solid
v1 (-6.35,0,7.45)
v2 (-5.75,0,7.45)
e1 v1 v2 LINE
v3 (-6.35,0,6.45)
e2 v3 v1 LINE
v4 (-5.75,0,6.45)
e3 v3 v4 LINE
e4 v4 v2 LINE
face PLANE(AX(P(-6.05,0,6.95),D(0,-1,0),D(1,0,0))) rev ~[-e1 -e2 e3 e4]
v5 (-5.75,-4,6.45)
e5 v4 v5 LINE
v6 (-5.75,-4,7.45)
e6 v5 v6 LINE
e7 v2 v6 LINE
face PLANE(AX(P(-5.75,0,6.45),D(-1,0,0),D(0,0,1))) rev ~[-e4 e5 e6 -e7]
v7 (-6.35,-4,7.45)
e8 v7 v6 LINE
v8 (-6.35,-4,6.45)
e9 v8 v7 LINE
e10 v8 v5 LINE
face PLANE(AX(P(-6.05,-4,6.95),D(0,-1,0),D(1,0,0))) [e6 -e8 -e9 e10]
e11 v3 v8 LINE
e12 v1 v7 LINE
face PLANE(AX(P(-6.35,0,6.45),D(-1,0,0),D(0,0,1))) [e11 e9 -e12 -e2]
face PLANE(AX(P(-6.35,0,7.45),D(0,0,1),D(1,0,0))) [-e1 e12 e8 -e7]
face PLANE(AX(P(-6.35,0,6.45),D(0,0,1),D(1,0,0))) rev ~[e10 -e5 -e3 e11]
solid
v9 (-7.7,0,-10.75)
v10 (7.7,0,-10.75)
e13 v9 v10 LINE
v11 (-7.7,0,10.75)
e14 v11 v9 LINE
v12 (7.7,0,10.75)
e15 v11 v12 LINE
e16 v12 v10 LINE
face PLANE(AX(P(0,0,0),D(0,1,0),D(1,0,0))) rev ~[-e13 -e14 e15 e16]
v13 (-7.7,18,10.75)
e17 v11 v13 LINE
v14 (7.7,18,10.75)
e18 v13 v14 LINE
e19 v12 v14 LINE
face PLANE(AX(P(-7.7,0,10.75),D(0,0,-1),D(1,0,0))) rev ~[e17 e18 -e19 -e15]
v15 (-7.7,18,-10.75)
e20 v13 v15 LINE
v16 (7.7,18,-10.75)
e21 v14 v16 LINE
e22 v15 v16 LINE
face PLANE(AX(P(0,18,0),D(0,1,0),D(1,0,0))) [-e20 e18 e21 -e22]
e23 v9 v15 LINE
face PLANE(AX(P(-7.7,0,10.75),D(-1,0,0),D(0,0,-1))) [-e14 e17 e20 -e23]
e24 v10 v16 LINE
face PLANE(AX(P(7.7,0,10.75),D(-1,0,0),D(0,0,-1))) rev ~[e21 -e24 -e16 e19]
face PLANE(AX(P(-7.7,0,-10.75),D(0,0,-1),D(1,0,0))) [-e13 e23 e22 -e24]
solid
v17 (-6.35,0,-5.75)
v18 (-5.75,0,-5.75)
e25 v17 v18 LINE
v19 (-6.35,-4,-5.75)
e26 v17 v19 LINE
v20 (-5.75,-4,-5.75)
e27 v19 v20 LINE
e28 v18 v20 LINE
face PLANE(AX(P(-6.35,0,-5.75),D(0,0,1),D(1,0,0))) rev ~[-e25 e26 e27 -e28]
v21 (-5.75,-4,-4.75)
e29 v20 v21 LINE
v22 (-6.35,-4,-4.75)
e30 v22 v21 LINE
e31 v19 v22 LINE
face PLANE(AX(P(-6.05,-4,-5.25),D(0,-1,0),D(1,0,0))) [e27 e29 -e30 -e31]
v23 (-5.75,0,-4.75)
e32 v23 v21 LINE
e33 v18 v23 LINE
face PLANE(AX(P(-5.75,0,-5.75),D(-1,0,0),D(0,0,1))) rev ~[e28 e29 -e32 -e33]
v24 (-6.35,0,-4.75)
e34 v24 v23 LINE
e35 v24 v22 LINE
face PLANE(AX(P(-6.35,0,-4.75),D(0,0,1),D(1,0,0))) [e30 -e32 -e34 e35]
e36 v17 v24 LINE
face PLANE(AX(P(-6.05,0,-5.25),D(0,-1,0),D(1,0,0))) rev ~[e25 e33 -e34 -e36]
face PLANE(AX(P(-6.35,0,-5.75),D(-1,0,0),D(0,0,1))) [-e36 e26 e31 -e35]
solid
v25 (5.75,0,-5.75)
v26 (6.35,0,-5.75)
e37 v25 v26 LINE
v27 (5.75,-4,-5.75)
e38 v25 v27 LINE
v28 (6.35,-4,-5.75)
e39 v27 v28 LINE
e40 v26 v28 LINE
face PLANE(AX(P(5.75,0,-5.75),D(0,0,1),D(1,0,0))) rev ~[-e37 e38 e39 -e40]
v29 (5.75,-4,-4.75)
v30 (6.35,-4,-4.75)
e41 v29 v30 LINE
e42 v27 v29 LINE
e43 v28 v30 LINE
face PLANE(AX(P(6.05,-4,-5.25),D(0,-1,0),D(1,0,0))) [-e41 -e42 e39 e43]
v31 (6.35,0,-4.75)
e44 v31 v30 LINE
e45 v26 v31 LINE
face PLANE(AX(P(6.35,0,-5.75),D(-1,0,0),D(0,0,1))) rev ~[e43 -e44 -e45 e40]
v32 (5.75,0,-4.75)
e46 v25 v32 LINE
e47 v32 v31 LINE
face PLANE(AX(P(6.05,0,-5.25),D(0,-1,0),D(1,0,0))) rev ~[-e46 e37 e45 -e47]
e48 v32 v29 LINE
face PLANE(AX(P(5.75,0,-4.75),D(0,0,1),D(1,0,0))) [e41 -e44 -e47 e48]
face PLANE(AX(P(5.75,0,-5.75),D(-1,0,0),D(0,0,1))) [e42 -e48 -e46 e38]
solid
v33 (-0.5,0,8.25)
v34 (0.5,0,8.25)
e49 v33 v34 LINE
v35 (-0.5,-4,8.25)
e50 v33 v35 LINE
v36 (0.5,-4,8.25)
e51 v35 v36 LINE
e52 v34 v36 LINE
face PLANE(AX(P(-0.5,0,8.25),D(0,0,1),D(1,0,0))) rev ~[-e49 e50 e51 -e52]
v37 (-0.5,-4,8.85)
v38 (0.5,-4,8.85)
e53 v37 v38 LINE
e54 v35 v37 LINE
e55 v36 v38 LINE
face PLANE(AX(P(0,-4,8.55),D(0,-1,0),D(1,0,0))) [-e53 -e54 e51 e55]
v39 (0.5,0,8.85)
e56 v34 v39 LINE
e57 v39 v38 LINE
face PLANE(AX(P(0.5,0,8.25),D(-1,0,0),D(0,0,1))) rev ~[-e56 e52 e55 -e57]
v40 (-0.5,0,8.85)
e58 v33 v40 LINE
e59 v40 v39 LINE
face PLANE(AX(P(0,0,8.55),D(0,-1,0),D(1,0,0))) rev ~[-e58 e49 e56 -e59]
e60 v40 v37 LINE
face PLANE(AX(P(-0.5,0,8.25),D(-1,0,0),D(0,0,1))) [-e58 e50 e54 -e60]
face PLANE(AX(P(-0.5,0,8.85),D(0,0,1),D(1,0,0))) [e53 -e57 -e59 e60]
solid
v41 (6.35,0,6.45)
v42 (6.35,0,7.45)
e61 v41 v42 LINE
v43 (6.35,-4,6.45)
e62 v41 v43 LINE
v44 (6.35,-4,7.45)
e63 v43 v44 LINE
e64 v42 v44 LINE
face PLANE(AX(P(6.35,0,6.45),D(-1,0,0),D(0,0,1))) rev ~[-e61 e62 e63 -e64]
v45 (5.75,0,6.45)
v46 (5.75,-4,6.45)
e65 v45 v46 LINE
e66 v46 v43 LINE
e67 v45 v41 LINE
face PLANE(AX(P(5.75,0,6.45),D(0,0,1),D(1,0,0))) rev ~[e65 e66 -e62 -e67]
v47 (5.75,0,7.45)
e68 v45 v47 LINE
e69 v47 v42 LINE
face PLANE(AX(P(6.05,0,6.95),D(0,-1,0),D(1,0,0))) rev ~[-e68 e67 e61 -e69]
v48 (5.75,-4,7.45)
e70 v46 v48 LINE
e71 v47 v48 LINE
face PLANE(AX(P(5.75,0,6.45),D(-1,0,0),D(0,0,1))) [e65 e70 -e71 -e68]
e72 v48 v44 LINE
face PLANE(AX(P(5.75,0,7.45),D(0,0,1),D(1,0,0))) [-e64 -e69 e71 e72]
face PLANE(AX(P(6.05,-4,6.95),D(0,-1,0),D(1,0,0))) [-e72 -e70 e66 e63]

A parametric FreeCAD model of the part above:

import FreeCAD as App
import Part
import Sketcher


def add_polygon(sketch, points):
    """Adds a closed chain of lines whose ends are joined by coincident constraints."""
    first, n = sketch.GeometryCount, len(points)
    for a, b in zip(points, points[1:] + points[:1]):
        sketch.addGeometry(Part.LineSegment(App.Vector(*a, 0), App.Vector(*b, 0)), False)
    for i in range(n):
        sketch.addConstraint(Sketcher.Constraint("Coincident", first + i, 2, first + (i + 1) % n, 1))

doc = App.newDocument("Part")
params = doc.addObject("Spreadsheet::Sheet", "Params")
for row, (alias, value) in enumerate([
    ("sketch1_width", "15.4 mm"),
    ("sketch1_height", "21.5 mm"),
    ("pad1_length", "18 mm"),
    ("sketch2_height", "1 mm"),
    ("sketch2_width", "0.6 mm"),
    ("pad2_length", "4 mm"),
    ("sketch3_height", "1 mm"),
    ("sketch3_width", "0.6 mm"),
    ("pad3_length", "4 mm"),
    ("sketch4_width", "1 mm"),
    ("sketch4_height", "0.6 mm"),
    ("pad4_length", "4 mm"),
    ("sketch5_height", "1 mm"),
    ("sketch5_width", "0.6 mm"),
    ("pad5_length", "4 mm"),
    ("sketch6_height", "1 mm"),
    ("sketch6_width", "0.6 mm"),
    ("pad6_length", "4 mm"),
], start=1):
    params.set(f"A{row}", alias)
    params.set(f"B{row}", "=" + value)
    params.setAlias(f"B{row}", alias)

body = doc.addObject("PartDesign::Body", "Body")

# Sketch on XZ plane
sketch1 = body.newObject("Sketcher::SketchObject", "Sketch")
sketch1.AttachmentSupport = (doc.getObject("XZ_Plane"), [""])
sketch1.MapMode = "FlatFace"
add_polygon(sketch1, [(-8, -11), (-8, 11), (8, 11), (8, -11)])  # lines 0-3
sketch1.addConstraint([
    Sketcher.Constraint("Vertical", 0),
    Sketcher.Constraint("Horizontal", 1),
    Sketcher.Constraint("Vertical", 2),
    Sketcher.Constraint("Horizontal", 3),
    Sketcher.Constraint("Symmetric", 0, 2, 2, 2, -1, 1),
    Sketcher.Constraint("DistanceX", 1, 1, 1, 2, 15.4),
    Sketcher.Constraint("DistanceY", 0, 1, 0, 2, 21.5),
])
sketch1.setExpression("Constraints[9]", "Params.sketch1_width")
sketch1.setExpression("Constraints[10]", "Params.sketch1_height")
pad1 = body.newObject("PartDesign::Pad", "Pad")
pad1.Profile = sketch1
pad1.setExpression("Length", "Params.pad1_length")
pad1.Reversed = True
body2 = doc.addObject("PartDesign::Body", "Body001")

# Sketch on XZ plane
sketch2 = body2.newObject("Sketcher::SketchObject", "Sketch001")
sketch2.AttachmentSupport = (doc.getObject("XZ_Plane001"), [""])
sketch2.MapMode = "FlatFace"
add_polygon(sketch2, [(-6.3, -4.8), (-6.3, -5.8), (-5.8, -5.8), (-5.8, -4.8)])  # lines 0-3
sketch2.addConstraint([
    Sketcher.Constraint("Vertical", 0),
    Sketcher.Constraint("Horizontal", 1),
    Sketcher.Constraint("Vertical", 2),
    Sketcher.Constraint("Horizontal", 3),
    Sketcher.Constraint("DistanceY", 0, 2, 0, 1, 1.0),
    Sketcher.Constraint("DistanceX", 1, 1, 1, 2, 0.6),
    Sketcher.Constraint("DistanceX", 0, 2, -1, 1, 6.35),
    Sketcher.Constraint("DistanceY", 0, 2, -1, 1, 5.75),
])
sketch2.setExpression("Constraints[8]", "Params.sketch2_height")
sketch2.setExpression("Constraints[9]", "Params.sketch2_width")
pad2 = body2.newObject("PartDesign::Pad", "Pad001")
pad2.Profile = sketch2
pad2.setExpression("Length", "Params.pad2_length")
body3 = doc.addObject("PartDesign::Body", "Body002")

# Sketch on XZ plane
sketch3 = body3.newObject("Sketcher::SketchObject", "Sketch002")
sketch3.AttachmentSupport = (doc.getObject("XZ_Plane002"), [""])
sketch3.MapMode = "FlatFace"
add_polygon(sketch3, [(-6.3, 7.5), (-6.3, 6.5), (-5.8, 6.5), (-5.8, 7.5)])  # lines 0-3
sketch3.addConstraint([
    Sketcher.Constraint("Vertical", 0),
    Sketcher.Constraint("Horizontal", 1),
    Sketcher.Constraint("Vertical", 2),
    Sketcher.Constraint("Horizontal", 3),
    Sketcher.Constraint("DistanceY", 0, 2, 0, 1, 1.0),
    Sketcher.Constraint("DistanceX", 1, 1, 1, 2, 0.6),
    Sketcher.Constraint("DistanceX", 0, 2, -1, 1, 6.35),
    Sketcher.Constraint("DistanceY", -1, 1, 0, 2, 6.45),
])
sketch3.setExpression("Constraints[8]", "Params.sketch3_height")
sketch3.setExpression("Constraints[9]", "Params.sketch3_width")
pad3 = body3.newObject("PartDesign::Pad", "Pad002")
pad3.Profile = sketch3
pad3.setExpression("Length", "Params.pad3_length")
body4 = doc.addObject("PartDesign::Body", "Body003")

# Sketch on XZ plane
sketch4 = body4.newObject("Sketcher::SketchObject", "Sketch003")
sketch4.AttachmentSupport = (doc.getObject("XZ_Plane003"), [""])
sketch4.MapMode = "FlatFace"
add_polygon(sketch4, [(-0.5, 8.8), (-0.5, 8.2), (0.5, 8.2), (0.5, 8.8)])  # lines 0-3
sketch4.addConstraint([
    Sketcher.Constraint("Vertical", 0),
    Sketcher.Constraint("Horizontal", 1),
    Sketcher.Constraint("Vertical", 2),
    Sketcher.Constraint("Horizontal", 3),
    Sketcher.Constraint("DistanceX", 1, 1, 1, 2, 1.0),
    Sketcher.Constraint("DistanceY", 0, 2, 0, 1, 0.6),
    Sketcher.Constraint("DistanceX", 0, 2, -1, 1, 0.5),
    Sketcher.Constraint("DistanceY", -1, 1, 0, 2, 8.25),
])
sketch4.setExpression("Constraints[8]", "Params.sketch4_width")
sketch4.setExpression("Constraints[9]", "Params.sketch4_height")
pad4 = body4.newObject("PartDesign::Pad", "Pad003")
pad4.Profile = sketch4
pad4.setExpression("Length", "Params.pad4_length")
body5 = doc.addObject("PartDesign::Body", "Body004")

# Sketch on XZ plane
sketch5 = body5.newObject("Sketcher::SketchObject", "Sketch004")
sketch5.AttachmentSupport = (doc.getObject("XZ_Plane004"), [""])
sketch5.MapMode = "FlatFace"
add_polygon(sketch5, [(5.8, 7.5), (5.8, 6.5), (6.3, 6.5), (6.3, 7.5)])  # lines 0-3
sketch5.addConstraint([
    Sketcher.Constraint("Vertical", 0),
    Sketcher.Constraint("Horizontal", 1),
    Sketcher.Constraint("Vertical", 2),
    Sketcher.Constraint("Horizontal", 3),
    Sketcher.Constraint("DistanceY", 0, 2, 0, 1, 1.0),
    Sketcher.Constraint("DistanceX", 1, 1, 1, 2, 0.6),
    Sketcher.Constraint("DistanceX", -1, 1, 0, 2, 5.75),
    Sketcher.Constraint("DistanceY", -1, 1, 0, 2, 6.45),
])
sketch5.setExpression("Constraints[8]", "Params.sketch5_height")
sketch5.setExpression("Constraints[9]", "Params.sketch5_width")
pad5 = body5.newObject("PartDesign::Pad", "Pad004")
pad5.Profile = sketch5
pad5.setExpression("Length", "Params.pad5_length")
body6 = doc.addObject("PartDesign::Body", "Body005")

# Sketch on XZ plane
sketch6 = body6.newObject("Sketcher::SketchObject", "Sketch005")
sketch6.AttachmentSupport = (doc.getObject("XZ_Plane005"), [""])
sketch6.MapMode = "FlatFace"
add_polygon(sketch6, [(5.8, -4.8), (5.8, -5.8), (6.3, -5.8), (6.3, -4.8)])  # lines 0-3
sketch6.addConstraint([
    Sketcher.Constraint("Vertical", 0),
    Sketcher.Constraint("Horizontal", 1),
    Sketcher.Constraint("Vertical", 2),
    Sketcher.Constraint("Horizontal", 3),
    Sketcher.Constraint("DistanceY", 0, 2, 0, 1, 1.0),
    Sketcher.Constraint("DistanceX", 1, 1, 1, 2, 0.6),
    Sketcher.Constraint("DistanceX", -1, 1, 0, 2, 5.75),
    Sketcher.Constraint("DistanceY", 0, 2, -1, 1, 5.75),
])
sketch6.setExpression("Constraints[8]", "Params.sketch6_height")
sketch6.setExpression("Constraints[9]", "Params.sketch6_width")
pad6 = body6.newObject("PartDesign::Pad", "Pad005")
pad6.Profile = sketch6
pad6.setExpression("Length", "Params.pad6_length")

doc.recompute()
